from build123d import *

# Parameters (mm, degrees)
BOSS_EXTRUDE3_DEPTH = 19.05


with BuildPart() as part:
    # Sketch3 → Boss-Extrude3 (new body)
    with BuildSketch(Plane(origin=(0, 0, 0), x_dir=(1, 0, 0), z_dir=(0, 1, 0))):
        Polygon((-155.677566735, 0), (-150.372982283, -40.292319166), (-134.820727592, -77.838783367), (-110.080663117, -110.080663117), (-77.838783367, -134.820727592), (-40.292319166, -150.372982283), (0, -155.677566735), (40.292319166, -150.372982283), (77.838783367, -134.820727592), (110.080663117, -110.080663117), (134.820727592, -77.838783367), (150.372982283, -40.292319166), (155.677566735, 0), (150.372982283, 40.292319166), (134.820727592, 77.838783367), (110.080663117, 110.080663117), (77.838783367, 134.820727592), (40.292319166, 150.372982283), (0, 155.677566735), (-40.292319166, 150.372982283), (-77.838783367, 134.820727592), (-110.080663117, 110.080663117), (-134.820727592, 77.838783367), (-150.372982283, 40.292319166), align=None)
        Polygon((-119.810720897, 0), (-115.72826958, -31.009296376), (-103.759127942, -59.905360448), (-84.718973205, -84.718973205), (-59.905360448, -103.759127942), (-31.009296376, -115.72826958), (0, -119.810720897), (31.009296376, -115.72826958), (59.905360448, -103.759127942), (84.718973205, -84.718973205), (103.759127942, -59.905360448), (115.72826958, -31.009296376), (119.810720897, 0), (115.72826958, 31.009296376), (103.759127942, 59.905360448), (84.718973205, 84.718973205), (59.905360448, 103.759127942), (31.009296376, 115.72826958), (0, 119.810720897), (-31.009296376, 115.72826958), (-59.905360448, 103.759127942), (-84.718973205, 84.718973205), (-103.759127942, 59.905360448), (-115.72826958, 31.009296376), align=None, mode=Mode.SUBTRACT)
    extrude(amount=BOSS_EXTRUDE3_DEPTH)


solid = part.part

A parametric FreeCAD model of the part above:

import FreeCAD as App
import Part
import Sketcher

V = App.Vector
Q = App.Units.Quantity

doc = App.newDocument("Part")
body = doc.addObject("PartDesign::Body", "Body")

sketch1 = doc.addObject("Sketcher::SketchObject", "Sketch")
body.addObject(sketch1)
sketch1.AttachmentSupport = (doc.XZ_Plane, [""])
sketch1.MapMode = "FlatFace"
sketch1.addGeometry(Part.LineSegment(V(-155.677567, 0, 0), V(-150.372982, 40.292319, 0)), False)
sketch1.addGeometry(Part.LineSegment(V(-150.372982, 40.292319, 0), V(-134.820728, 77.838783, 0)), False)
sketch1.addGeometry(Part.LineSegment(V(-134.820728, 77.838783, 0), V(-110.080663, 110.080663, 0)), False)
sketch1.addGeometry(Part.LineSegment(V(-110.080663, 110.080663, 0), V(-77.838783, 134.820728, 0)), False)
sketch1.addGeometry(Part.LineSegment(V(-77.838783, 134.820728, 0), V(-40.292319, 150.372982, 0)), False)
sketch1.addGeometry(Part.LineSegment(V(-40.292319, 150.372982, 0), V(0, 155.677567, 0)), False)
sketch1.addGeometry(Part.LineSegment(V(0, 155.677567, 0), V(40.292319, 150.372982, 0)), False)
sketch1.addGeometry(Part.LineSegment(V(40.292319, 150.372982, 0), V(77.838783, 134.820728, 0)), False)
sketch1.addGeometry(Part.LineSegment(V(77.838783, 134.820728, 0), V(110.080663, 110.080663, 0)), False)
sketch1.addGeometry(Part.LineSegment(V(110.080663, 110.080663, 0), V(134.820728, 77.838783, 0)), False)
sketch1.addGeometry(Part.LineSegment(V(134.820728, 77.838783, 0), V(150.372982, 40.292319, 0)), False)
sketch1.addGeometry(Part.LineSegment(V(150.372982, 40.292319, 0), V(155.677567, 0, 0)), False)
sketch1.addGeometry(Part.LineSegment(V(155.677567, 0, 0), V(150.372982, -40.292319, 0)), False)
sketch1.addGeometry(Part.LineSegment(V(150.372982, -40.292319, 0), V(134.820728, -77.838783, 0)), False)
sketch1.addGeometry(Part.LineSegment(V(134.820728, -77.838783, 0), V(110.080663, -110.080663, 0)), False)
sketch1.addGeometry(Part.LineSegment(V(110.080663, -110.080663, 0), V(77.838783, -134.820728, 0)), False)
sketch1.addGeometry(Part.LineSegment(V(77.838783, -134.820728, 0), V(40.292319, -150.372982, 0)), False)
sketch1.addGeometry(Part.LineSegment(V(40.292319, -150.372982, 0), V(0, -155.677567, 0)), False)
sketch1.addGeometry(Part.LineSegment(V(0, -155.677567, 0), V(-40.292319, -150.372982, 0)), False)
sketch1.addGeometry(Part.LineSegment(V(-40.292319, -150.372982, 0), V(-77.838783, -134.820728, 0)), False)
sketch1.addGeometry(Part.LineSegment(V(-77.838783, -134.820728, 0), V(-110.080663, -110.080663, 0)), False)
sketch1.addGeometry(Part.LineSegment(V(-110.080663, -110.080663, 0), V(-134.820728, -77.838783, 0)), False)
sketch1.addGeometry(Part.LineSegment(V(-134.820728, -77.838783, 0), V(-150.372982, -40.292319, 0)), False)
sketch1.addGeometry(Part.LineSegment(V(-150.372982, -40.292319, 0), V(-155.677567, 0, 0)), False)
sketch1.addGeometry(Part.LineSegment(V(-115.72827, 31.009296, 0), V(-119.810721, 0, 0)), False)
sketch1.addGeometry(Part.LineSegment(V(-119.810721, 0, 0), V(-115.72827, -31.009296, 0)), False)
sketch1.addGeometry(Part.LineSegment(V(-115.72827, -31.009296, 0), V(-103.759128, -59.90536, 0)), False)
sketch1.addGeometry(Part.LineSegment(V(-103.759128, -59.90536, 0), V(-84.718973, -84.718973, 0)), False)
sketch1.addGeometry(Part.LineSegment(V(-84.718973, -84.718973, 0), V(-59.90536, -103.759128, 0)), False)
sketch1.addGeometry(Part.LineSegment(V(-59.90536, -103.759128, 0), V(-31.009296, -115.72827, 0)), False)
sketch1.addGeometry(Part.LineSegment(V(-31.009296, -115.72827, 0), V(0, -119.810721, 0)), False)
sketch1.addGeometry(Part.LineSegment(V(0, -119.810721, 0), V(31.009296, -115.72827, 0)), False)
sketch1.addGeometry(Part.LineSegment(V(31.009296, -115.72827, 0), V(59.90536, -103.759128, 0)), False)
sketch1.addGeometry(Part.LineSegment(V(59.90536, -103.759128, 0), V(84.718973, -84.718973, 0)), False)
sketch1.addGeometry(Part.LineSegment(V(84.718973, -84.718973, 0), V(103.759128, -59.90536, 0)), False)
sketch1.addGeometry(Part.LineSegment(V(103.759128, -59.90536, 0), V(115.72827, -31.009296, 0)), False)
sketch1.addGeometry(Part.LineSegment(V(115.72827, -31.009296, 0), V(119.810721, 0, 0)), False)
sketch1.addGeometry(Part.LineSegment(V(119.810721, 0, 0), V(115.72827, 31.009296, 0)), False)
sketch1.addGeometry(Part.LineSegment(V(115.72827, 31.009296, 0), V(103.759128, 59.90536, 0)), False)
sketch1.addGeometry(Part.LineSegment(V(103.759128, 59.90536, 0), V(84.718973, 84.718973, 0)), False)
sketch1.addGeometry(Part.LineSegment(V(84.718973, 84.718973, 0), V(59.90536, 103.759128, 0)), False)
sketch1.addGeometry(Part.LineSegment(V(59.90536, 103.759128, 0), V(31.009296, 115.72827, 0)), False)
sketch1.addGeometry(Part.LineSegment(V(31.009296, 115.72827, 0), V(0, 119.810721, 0)), False)
sketch1.addGeometry(Part.LineSegment(V(0, 119.810721, 0), V(-31.009296, 115.72827, 0)), False)
sketch1.addGeometry(Part.LineSegment(V(-31.009296, 115.72827, 0), V(-59.90536, 103.759128, 0)), False)
sketch1.addGeometry(Part.LineSegment(V(-59.90536, 103.759128, 0), V(-84.718973, 84.718973, 0)), False)
sketch1.addGeometry(Part.LineSegment(V(-84.718973, 84.718973, 0), V(-103.759128, 59.90536, 0)), False)
sketch1.addGeometry(Part.LineSegment(V(-103.759128, 59.90536, 0), V(-115.72827, 31.009296, 0)), False)
sketch1.addConstraint(Sketcher.Constraint("Coincident", 0, 2, 1, 1))
sketch1.addConstraint(Sketcher.Constraint("Coincident", 1, 2, 2, 1))
sketch1.addConstraint(Sketcher.Constraint("Coincident", 2, 2, 3, 1))
sketch1.addConstraint(Sketcher.Constraint("Coincident", 3, 2, 4, 1))
sketch1.addConstraint(Sketcher.Constraint("Coincident", 4, 2, 5, 1))
sketch1.addConstraint(Sketcher.Constraint("Coincident", 5, 2, 6, 1))
sketch1.addConstraint(Sketcher.Constraint("Coincident", 6, 2, 7, 1))
sketch1.addConstraint(Sketcher.Constraint("Coincident", 7, 2, 8, 1))
sketch1.addConstraint(Sketcher.Constraint("Coincident", 8, 2, 9, 1))
sketch1.addConstraint(Sketcher.Constraint("Coincident", 9, 2, 10, 1))
sketch1.addConstraint(Sketcher.Constraint("Coincident", 10, 2, 11, 1))
sketch1.addConstraint(Sketcher.Constraint("Coincident", 11, 2, 12, 1))
sketch1.addConstraint(Sketcher.Constraint("Coincident", 12, 2, 13, 1))
sketch1.addConstraint(Sketcher.Constraint("Coincident", 13, 2, 14, 1))
sketch1.addConstraint(Sketcher.Constraint("Coincident", 14, 2, 15, 1))
sketch1.addConstraint(Sketcher.Constraint("Coincident", 15, 2, 16, 1))
sketch1.addConstraint(Sketcher.Constraint("Coincident", 16, 2, 17, 1))
sketch1.addConstraint(Sketcher.Constraint("Coincident", 17, 2, 18, 1))
sketch1.addConstraint(Sketcher.Constraint("Coincident", 18, 2, 19, 1))
sketch1.addConstraint(Sketcher.Constraint("Coincident", 19, 2, 20, 1))
sketch1.addConstraint(Sketcher.Constraint("Coincident", 20, 2, 21, 1))
sketch1.addConstraint(Sketcher.Constraint("Coincident", 21, 2, 22, 1))
sketch1.addConstraint(Sketcher.Constraint("Coincident", 22, 2, 23, 1))
sketch1.addConstraint(Sketcher.Constraint("Coincident", 23, 2, 0, 1))
sketch1.addConstraint(Sketcher.Constraint("Coincident", 24, 2, 25, 1))
sketch1.addConstraint(Sketcher.Constraint("Coincident", 25, 2, 26, 1))
sketch1.addConstraint(Sketcher.Constraint("Coincident", 26, 2, 27, 1))
sketch1.addConstraint(Sketcher.Constraint("Coincident", 27, 2, 28, 1))
sketch1.addConstraint(Sketcher.Constraint("Coincident", 28, 2, 29, 1))
sketch1.addConstraint(Sketcher.Constraint("Coincident", 29, 2, 30, 1))
sketch1.addConstraint(Sketcher.Constraint("Coincident", 30, 2, 31, 1))
sketch1.addConstraint(Sketcher.Constraint("Coincident", 31, 2, 32, 1))
sketch1.addConstraint(Sketcher.Constraint("Coincident", 32, 2, 33, 1))
sketch1.addConstraint(Sketcher.Constraint("Coincident", 33, 2, 34, 1))
sketch1.addConstraint(Sketcher.Constraint("Coincident", 34, 2, 35, 1))
sketch1.addConstraint(Sketcher.Constraint("Coincident", 35, 2, 36, 1))
sketch1.addConstraint(Sketcher.Constraint("Coincident", 36, 2, 37, 1))
sketch1.addConstraint(Sketcher.Constraint("Coincident", 37, 2, 38, 1))
sketch1.addConstraint(Sketcher.Constraint("Coincident", 38, 2, 39, 1))
sketch1.addConstraint(Sketcher.Constraint("Coincident", 39, 2, 40, 1))
sketch1.addConstraint(Sketcher.Constraint("Coincident", 40, 2, 41, 1))
sketch1.addConstraint(Sketcher.Constraint("Coincident", 41, 2, 42, 1))
sketch1.addConstraint(Sketcher.Constraint("Coincident", 42, 2, 43, 1))
sketch1.addConstraint(Sketcher.Constraint("Coincident", 43, 2, 44, 1))
sketch1.addConstraint(Sketcher.Constraint("Coincident", 44, 2, 45, 1))
sketch1.addConstraint(Sketcher.Constraint("Coincident", 45, 2, 46, 1))
sketch1.addConstraint(Sketcher.Constraint("Coincident", 46, 2, 47, 1))
sketch1.addConstraint(Sketcher.Constraint("Coincident", 47, 2, 24, 1))
sketch1.addConstraint(Sketcher.Constraint("Symmetric", 0, 2, 12, 2, -1, 1))
sketch1.addConstraint(Sketcher.Constraint("Symmetric", 1, 2, 13, 2, -1, 1))
sketch1.addConstraint(Sketcher.Constraint("Symmetric", 2, 2, 14, 2, -1, 1))
sketch1.addConstraint(Sketcher.Constraint("Symmetric", 3, 2, 15, 2, -1, 1))
sketch1.addConstraint(Sketcher.Constraint("Symmetric", 4, 2, 16, 2, -1, 1))
sketch1.addConstraint(Sketcher.Constraint("Symmetric", 5, 2, 17, 2, -1, 1))
sketch1.addConstraint(Sketcher.Constraint("Symmetric", 6, 2, 18, 2, -1, 1))
sketch1.addConstraint(Sketcher.Constraint("Symmetric", 7, 2, 19, 2, -1, 1))
sketch1.addConstraint(Sketcher.Constraint("Symmetric", 8, 2, 20, 2, -1, 1))
sketch1.addConstraint(Sketcher.Constraint("Symmetric", 9, 2, 21, 2, -1, 1))
sketch1.addConstraint(Sketcher.Constraint("Symmetric", 10, 2, 22, 2, -1, 1))
sketch1.addConstraint(Sketcher.Constraint("Symmetric", 11, 2, 23, 2, -1, 1))
sketch1.addConstraint(Sketcher.Constraint("Symmetric", 24, 2, 36, 2, -1, 1))
sketch1.addConstraint(Sketcher.Constraint("Symmetric", 25, 2, 37, 2, -1, 1))
sketch1.addConstraint(Sketcher.Constraint("Symmetric", 26, 2, 38, 2, -1, 1))
sketch1.addConstraint(Sketcher.Constraint("Symmetric", 27, 2, 39, 2, -1, 1))
sketch1.addConstraint(Sketcher.Constraint("Symmetric", 28, 2, 40, 2, -1, 1))
sketch1.addConstraint(Sketcher.Constraint("Symmetric", 29, 2, 41, 2, -1, 1))
sketch1.addConstraint(Sketcher.Constraint("Symmetric", 30, 2, 42, 2, -1, 1))
sketch1.addConstraint(Sketcher.Constraint("Symmetric", 31, 2, 43, 2, -1, 1))
sketch1.addConstraint(Sketcher.Constraint("Symmetric", 32, 2, 44, 2, -1, 1))
sketch1.addConstraint(Sketcher.Constraint("Symmetric", 33, 2, 45, 2, -1, 1))
sketch1.addConstraint(Sketcher.Constraint("Symmetric", 34, 2, 46, 2, -1, 1))
sketch1.addConstraint(Sketcher.Constraint("Symmetric", 35, 2, 47, 2, -1, 1))
sketch1.addConstraint(Sketcher.Constraint("Symmetric", 4, 2, 6, 2, -2))
sketch1.addConstraint(Sketcher.Constraint("Symmetric", 3, 2, 7, 2, -2))
sketch1.addConstraint(Sketcher.Constraint("Symmetric", 2, 2, 8, 2, -2))
sketch1.addConstraint(Sketcher.Constraint("Symmetric", 1, 2, 9, 2, -2))
sketch1.addConstraint(Sketcher.Constraint("Symmetric", 0, 2, 10, 2, -2))
sketch1.addConstraint(Sketcher.Constraint("Symmetric", 29, 2, 31, 2, -2))
sketch1.addConstraint(Sketcher.Constraint("Symmetric", 28, 2, 32, 2, -2))
sketch1.addConstraint(Sketcher.Constraint("Symmetric", 27, 2, 33, 2, -2))
sketch1.addConstraint(Sketcher.Constraint("Symmetric", 26, 2, 34, 2, -2))
sketch1.addConstraint(Sketcher.Constraint("Symmetric", 25, 2, 35, 2, -2))
sketch1.addConstraint(Sketcher.Constraint("PointOnObject", 5, 2, -2))
sketch1.addConstraint(Sketcher.Constraint("PointOnObject", 11, 2, -1))
sketch1.addConstraint(Sketcher.Constraint("PointOnObject", 24, 2, -1))
sketch1.addConstraint(Sketcher.Constraint("PointOnObject", 30, 2, -2))
sketch1.addConstraint(Sketcher.Constraint("Perpendicular", 0, 6))
sketch1.addConstraint(Sketcher.Constraint("Perpendicular", 1, 7))
sketch1.addConstraint(Sketcher.Constraint("Perpendicular", 2, 8))
sketch1.addConstraint(Sketcher.Constraint("Perpendicular", 18, 24))
sketch1.addConstraint(Sketcher.Constraint("Parallel", 22, 26))
sketch1.addConstraint(Sketcher.Constraint("Parallel", 21, 27))
sketch1.addConstraint(Sketcher.Constraint("Parallel", 20, 28))
sketch1.addConstraint(Sketcher.Constraint("Parallel", 19, 29))
sketch1.addConstraint(Sketcher.Constraint("Perpendicular", 24, 30))
sketch1.addConstraint(Sketcher.Constraint("Equal", 0, 1))
sketch1.addConstraint(Sketcher.Constraint("Equal", 1, 2))
sketch1.addConstraint(Sketcher.Constraint("Equal", 2, 3))
sketch1.addConstraint(Sketcher.Constraint("Equal", 3, 4))
sketch1.addConstraint(Sketcher.Constraint("Equal", 4, 5))
sketch1.addConstraint(Sketcher.Constraint("Equal", 25, 26))
sketch1.addConstraint(Sketcher.Constraint("Equal", 26, 27))
sketch1.addConstraint(Sketcher.Constraint("Equal", 27, 28))
sketch1.addConstraint(Sketcher.Constraint("Equal", 28, 29))
sketch1.addConstraint(Sketcher.Constraint("Equal", 29, 30))
sketch1.addConstraint(Sketcher.Constraint("Distance", 0, Q("1.6 in")))
sketch1.addConstraint(Sketcher.Constraint("Angle", 0, Q("82.5 deg")))
sketch1.addConstraint(Sketcher.Constraint("Angle", 1, Q("67.5 deg")))
sketch1.addConstraint(Sketcher.Constraint("Angle", 2, Q("52.5 deg")))
sketch1.addConstraint(Sketcher.Constraint("DistanceX", 21, 2, 26, 2, 31.0616))
pad1 = doc.addObject("PartDesign::Pad", "Pad")
body.addObject(pad1)
pad1.Profile = sketch1
pad1.Length = Q("0.75 in")
pad1.Reversed = True

doc.recompute()
